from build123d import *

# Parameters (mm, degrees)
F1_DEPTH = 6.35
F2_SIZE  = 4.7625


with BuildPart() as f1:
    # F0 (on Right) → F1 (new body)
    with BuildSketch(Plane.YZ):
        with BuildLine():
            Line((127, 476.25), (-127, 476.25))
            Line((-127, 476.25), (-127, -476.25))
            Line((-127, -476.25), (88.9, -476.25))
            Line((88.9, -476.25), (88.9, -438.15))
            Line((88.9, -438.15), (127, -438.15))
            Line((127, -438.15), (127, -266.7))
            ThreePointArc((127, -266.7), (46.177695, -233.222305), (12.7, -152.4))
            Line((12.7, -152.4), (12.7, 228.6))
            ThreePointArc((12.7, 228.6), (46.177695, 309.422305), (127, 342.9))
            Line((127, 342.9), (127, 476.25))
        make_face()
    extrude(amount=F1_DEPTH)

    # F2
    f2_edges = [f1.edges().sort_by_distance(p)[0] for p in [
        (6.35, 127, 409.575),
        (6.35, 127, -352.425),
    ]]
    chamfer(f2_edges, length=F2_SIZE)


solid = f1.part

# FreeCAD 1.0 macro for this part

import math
import FreeCAD as App
import Part
import Sketcher
Q = App.Units.Quantity


def edges_at(feature, points):
    """Names of the edges that pass closest to the given points."""
    edges = feature.Shape.Edges
    near = lambda p: min(range(len(edges)), key=lambda i: edges[i].distToShape(Part.Vertex(*p))[0])
    return sorted({f"Edge{near(p) + 1}" for p in points})

doc = App.newDocument("Part")
body = doc.addObject("PartDesign::Body", "Body")

# Sketch on YZ plane
sketch1 = body.newObject("Sketcher::SketchObject", "Sketch")
sketch1.AttachmentSupport = (doc.getObject("YZ_Plane"), [""])
sketch1.MapMode = "FlatFace"
sketch1.addGeometry(Part.LineSegment(App.Vector(127, 476.25, 0), App.Vector(-127, 476.25, 0)), False)
sketch1.addGeometry(Part.LineSegment(App.Vector(-127, 476.25, 0), App.Vector(-127, -476.25, 0)), False)
sketch1.addGeometry(Part.LineSegment(App.Vector(-127, -476.25, 0), App.Vector(88.9, -476.25, 0)), False)
sketch1.addGeometry(Part.LineSegment(App.Vector(88.9, -476.25, 0), App.Vector(88.9, -438.15, 0)), False)
sketch1.addGeometry(Part.LineSegment(App.Vector(88.9, -438.15, 0), App.Vector(127, -438.15, 0)), False)
sketch1.addGeometry(Part.LineSegment(App.Vector(127, -438.15, 0), App.Vector(127, -266.7, 0)), False)
sketch1.addGeometry(Part.ArcOfCircle(Part.Circle(App.Vector(127, -152.4, 0), App.Vector(0, 0, 1), 114.3), math.radians(-180), math.radians(-90)), False)
sketch1.addGeometry(Part.LineSegment(App.Vector(12.7, -152.4, 0), App.Vector(12.7, 228.6, 0)), False)
sketch1.addGeometry(Part.ArcOfCircle(Part.Circle(App.Vector(127, 228.6, 0), App.Vector(0, 0, 1), 114.3), math.radians(90), math.radians(180)), False)
sketch1.addGeometry(Part.LineSegment(App.Vector(127, 342.9, 0), App.Vector(127, 476.25, 0)), False)
sketch1.addConstraint(Sketcher.Constraint("Coincident", 0, 2, 1, 1))
sketch1.addConstraint(Sketcher.Constraint("Coincident", 1, 2, 2, 1))
sketch1.addConstraint(Sketcher.Constraint("Coincident", 2, 2, 3, 1))
sketch1.addConstraint(Sketcher.Constraint("Coincident", 3, 2, 4, 1))
sketch1.addConstraint(Sketcher.Constraint("Coincident", 4, 2, 5, 1))
sketch1.addConstraint(Sketcher.Constraint("Coincident", 5, 2, 6, 2))
sketch1.addConstraint(Sketcher.Constraint("Tangent", 6, 1, 7, 1))
sketch1.addConstraint(Sketcher.Constraint("Tangent", 7, 2, 8, 2))
sketch1.addConstraint(Sketcher.Constraint("Coincident", 8, 1, 9, 1))
sketch1.addConstraint(Sketcher.Constraint("Coincident", 9, 2, 0, 1))
sketch1.addConstraint(Sketcher.Constraint("Horizontal", 0))
sketch1.addConstraint(Sketcher.Constraint("Vertical", 1))
sketch1.addConstraint(Sketcher.Constraint("Horizontal", 2))
sketch1.addConstraint(Sketcher.Constraint("Vertical", 3))
sketch1.addConstraint(Sketcher.Constraint("Horizontal", 4))
sketch1.addConstraint(Sketcher.Constraint("Vertical", 5))
sketch1.addConstraint(Sketcher.Constraint("Vertical", 7))
sketch1.addConstraint(Sketcher.Constraint("Vertical", 9))
sketch1.addConstraint(Sketcher.Constraint("Equal", 6, 8))
sketch1.addConstraint(Sketcher.Constraint("Symmetric", 1, 2, 9, 2, -1, 1))
sketch1.addConstraint(Sketcher.Constraint("Vertical", 8, 3, 4, 2))
sketch1.addConstraint(Sketcher.Constraint("Vertical", 5, 2, 8, 1))
sketch1.addConstraint(Sketcher.Constraint("Equal", 4, 3))
sketch1.addConstraint(Sketcher.Constraint("Radius", 6, Q("4.5 in")))
sketch1.addConstraint(Sketcher.Constraint("DistanceX", 0, 2, 0, 1, Q("10 in")))
sketch1.addConstraint(Sketcher.Constraint("DistanceY", 7, 1, 7, 2, Q("15 in")))
sketch1.addConstraint(Sketcher.Constraint("DistanceX", 2, 1, 2, 2, Q("8.5 in")))
sketch1.addConstraint(Sketcher.Constraint("DistanceY", 1, 2, 1, 1, Q("37.5 in")))
sketch1.addConstraint(Sketcher.Constraint("DistanceY", 6, 3, -1, 1, Q("6 in")))
pad1 = body.newObject("PartDesign::Pad", "Pad")
pad1.Profile = sketch1
pad1.Length = Q("0.25 in")
doc.recompute()

chamfer = body.newObject("PartDesign::Chamfer", "Chamfer")
chamfer.Base = (pad1, edges_at(pad1, [(6.35, 127, 409.575), (6.35, 127, -352.425)]))
chamfer.Size = Q("0.1875 in")

doc.recompute()
